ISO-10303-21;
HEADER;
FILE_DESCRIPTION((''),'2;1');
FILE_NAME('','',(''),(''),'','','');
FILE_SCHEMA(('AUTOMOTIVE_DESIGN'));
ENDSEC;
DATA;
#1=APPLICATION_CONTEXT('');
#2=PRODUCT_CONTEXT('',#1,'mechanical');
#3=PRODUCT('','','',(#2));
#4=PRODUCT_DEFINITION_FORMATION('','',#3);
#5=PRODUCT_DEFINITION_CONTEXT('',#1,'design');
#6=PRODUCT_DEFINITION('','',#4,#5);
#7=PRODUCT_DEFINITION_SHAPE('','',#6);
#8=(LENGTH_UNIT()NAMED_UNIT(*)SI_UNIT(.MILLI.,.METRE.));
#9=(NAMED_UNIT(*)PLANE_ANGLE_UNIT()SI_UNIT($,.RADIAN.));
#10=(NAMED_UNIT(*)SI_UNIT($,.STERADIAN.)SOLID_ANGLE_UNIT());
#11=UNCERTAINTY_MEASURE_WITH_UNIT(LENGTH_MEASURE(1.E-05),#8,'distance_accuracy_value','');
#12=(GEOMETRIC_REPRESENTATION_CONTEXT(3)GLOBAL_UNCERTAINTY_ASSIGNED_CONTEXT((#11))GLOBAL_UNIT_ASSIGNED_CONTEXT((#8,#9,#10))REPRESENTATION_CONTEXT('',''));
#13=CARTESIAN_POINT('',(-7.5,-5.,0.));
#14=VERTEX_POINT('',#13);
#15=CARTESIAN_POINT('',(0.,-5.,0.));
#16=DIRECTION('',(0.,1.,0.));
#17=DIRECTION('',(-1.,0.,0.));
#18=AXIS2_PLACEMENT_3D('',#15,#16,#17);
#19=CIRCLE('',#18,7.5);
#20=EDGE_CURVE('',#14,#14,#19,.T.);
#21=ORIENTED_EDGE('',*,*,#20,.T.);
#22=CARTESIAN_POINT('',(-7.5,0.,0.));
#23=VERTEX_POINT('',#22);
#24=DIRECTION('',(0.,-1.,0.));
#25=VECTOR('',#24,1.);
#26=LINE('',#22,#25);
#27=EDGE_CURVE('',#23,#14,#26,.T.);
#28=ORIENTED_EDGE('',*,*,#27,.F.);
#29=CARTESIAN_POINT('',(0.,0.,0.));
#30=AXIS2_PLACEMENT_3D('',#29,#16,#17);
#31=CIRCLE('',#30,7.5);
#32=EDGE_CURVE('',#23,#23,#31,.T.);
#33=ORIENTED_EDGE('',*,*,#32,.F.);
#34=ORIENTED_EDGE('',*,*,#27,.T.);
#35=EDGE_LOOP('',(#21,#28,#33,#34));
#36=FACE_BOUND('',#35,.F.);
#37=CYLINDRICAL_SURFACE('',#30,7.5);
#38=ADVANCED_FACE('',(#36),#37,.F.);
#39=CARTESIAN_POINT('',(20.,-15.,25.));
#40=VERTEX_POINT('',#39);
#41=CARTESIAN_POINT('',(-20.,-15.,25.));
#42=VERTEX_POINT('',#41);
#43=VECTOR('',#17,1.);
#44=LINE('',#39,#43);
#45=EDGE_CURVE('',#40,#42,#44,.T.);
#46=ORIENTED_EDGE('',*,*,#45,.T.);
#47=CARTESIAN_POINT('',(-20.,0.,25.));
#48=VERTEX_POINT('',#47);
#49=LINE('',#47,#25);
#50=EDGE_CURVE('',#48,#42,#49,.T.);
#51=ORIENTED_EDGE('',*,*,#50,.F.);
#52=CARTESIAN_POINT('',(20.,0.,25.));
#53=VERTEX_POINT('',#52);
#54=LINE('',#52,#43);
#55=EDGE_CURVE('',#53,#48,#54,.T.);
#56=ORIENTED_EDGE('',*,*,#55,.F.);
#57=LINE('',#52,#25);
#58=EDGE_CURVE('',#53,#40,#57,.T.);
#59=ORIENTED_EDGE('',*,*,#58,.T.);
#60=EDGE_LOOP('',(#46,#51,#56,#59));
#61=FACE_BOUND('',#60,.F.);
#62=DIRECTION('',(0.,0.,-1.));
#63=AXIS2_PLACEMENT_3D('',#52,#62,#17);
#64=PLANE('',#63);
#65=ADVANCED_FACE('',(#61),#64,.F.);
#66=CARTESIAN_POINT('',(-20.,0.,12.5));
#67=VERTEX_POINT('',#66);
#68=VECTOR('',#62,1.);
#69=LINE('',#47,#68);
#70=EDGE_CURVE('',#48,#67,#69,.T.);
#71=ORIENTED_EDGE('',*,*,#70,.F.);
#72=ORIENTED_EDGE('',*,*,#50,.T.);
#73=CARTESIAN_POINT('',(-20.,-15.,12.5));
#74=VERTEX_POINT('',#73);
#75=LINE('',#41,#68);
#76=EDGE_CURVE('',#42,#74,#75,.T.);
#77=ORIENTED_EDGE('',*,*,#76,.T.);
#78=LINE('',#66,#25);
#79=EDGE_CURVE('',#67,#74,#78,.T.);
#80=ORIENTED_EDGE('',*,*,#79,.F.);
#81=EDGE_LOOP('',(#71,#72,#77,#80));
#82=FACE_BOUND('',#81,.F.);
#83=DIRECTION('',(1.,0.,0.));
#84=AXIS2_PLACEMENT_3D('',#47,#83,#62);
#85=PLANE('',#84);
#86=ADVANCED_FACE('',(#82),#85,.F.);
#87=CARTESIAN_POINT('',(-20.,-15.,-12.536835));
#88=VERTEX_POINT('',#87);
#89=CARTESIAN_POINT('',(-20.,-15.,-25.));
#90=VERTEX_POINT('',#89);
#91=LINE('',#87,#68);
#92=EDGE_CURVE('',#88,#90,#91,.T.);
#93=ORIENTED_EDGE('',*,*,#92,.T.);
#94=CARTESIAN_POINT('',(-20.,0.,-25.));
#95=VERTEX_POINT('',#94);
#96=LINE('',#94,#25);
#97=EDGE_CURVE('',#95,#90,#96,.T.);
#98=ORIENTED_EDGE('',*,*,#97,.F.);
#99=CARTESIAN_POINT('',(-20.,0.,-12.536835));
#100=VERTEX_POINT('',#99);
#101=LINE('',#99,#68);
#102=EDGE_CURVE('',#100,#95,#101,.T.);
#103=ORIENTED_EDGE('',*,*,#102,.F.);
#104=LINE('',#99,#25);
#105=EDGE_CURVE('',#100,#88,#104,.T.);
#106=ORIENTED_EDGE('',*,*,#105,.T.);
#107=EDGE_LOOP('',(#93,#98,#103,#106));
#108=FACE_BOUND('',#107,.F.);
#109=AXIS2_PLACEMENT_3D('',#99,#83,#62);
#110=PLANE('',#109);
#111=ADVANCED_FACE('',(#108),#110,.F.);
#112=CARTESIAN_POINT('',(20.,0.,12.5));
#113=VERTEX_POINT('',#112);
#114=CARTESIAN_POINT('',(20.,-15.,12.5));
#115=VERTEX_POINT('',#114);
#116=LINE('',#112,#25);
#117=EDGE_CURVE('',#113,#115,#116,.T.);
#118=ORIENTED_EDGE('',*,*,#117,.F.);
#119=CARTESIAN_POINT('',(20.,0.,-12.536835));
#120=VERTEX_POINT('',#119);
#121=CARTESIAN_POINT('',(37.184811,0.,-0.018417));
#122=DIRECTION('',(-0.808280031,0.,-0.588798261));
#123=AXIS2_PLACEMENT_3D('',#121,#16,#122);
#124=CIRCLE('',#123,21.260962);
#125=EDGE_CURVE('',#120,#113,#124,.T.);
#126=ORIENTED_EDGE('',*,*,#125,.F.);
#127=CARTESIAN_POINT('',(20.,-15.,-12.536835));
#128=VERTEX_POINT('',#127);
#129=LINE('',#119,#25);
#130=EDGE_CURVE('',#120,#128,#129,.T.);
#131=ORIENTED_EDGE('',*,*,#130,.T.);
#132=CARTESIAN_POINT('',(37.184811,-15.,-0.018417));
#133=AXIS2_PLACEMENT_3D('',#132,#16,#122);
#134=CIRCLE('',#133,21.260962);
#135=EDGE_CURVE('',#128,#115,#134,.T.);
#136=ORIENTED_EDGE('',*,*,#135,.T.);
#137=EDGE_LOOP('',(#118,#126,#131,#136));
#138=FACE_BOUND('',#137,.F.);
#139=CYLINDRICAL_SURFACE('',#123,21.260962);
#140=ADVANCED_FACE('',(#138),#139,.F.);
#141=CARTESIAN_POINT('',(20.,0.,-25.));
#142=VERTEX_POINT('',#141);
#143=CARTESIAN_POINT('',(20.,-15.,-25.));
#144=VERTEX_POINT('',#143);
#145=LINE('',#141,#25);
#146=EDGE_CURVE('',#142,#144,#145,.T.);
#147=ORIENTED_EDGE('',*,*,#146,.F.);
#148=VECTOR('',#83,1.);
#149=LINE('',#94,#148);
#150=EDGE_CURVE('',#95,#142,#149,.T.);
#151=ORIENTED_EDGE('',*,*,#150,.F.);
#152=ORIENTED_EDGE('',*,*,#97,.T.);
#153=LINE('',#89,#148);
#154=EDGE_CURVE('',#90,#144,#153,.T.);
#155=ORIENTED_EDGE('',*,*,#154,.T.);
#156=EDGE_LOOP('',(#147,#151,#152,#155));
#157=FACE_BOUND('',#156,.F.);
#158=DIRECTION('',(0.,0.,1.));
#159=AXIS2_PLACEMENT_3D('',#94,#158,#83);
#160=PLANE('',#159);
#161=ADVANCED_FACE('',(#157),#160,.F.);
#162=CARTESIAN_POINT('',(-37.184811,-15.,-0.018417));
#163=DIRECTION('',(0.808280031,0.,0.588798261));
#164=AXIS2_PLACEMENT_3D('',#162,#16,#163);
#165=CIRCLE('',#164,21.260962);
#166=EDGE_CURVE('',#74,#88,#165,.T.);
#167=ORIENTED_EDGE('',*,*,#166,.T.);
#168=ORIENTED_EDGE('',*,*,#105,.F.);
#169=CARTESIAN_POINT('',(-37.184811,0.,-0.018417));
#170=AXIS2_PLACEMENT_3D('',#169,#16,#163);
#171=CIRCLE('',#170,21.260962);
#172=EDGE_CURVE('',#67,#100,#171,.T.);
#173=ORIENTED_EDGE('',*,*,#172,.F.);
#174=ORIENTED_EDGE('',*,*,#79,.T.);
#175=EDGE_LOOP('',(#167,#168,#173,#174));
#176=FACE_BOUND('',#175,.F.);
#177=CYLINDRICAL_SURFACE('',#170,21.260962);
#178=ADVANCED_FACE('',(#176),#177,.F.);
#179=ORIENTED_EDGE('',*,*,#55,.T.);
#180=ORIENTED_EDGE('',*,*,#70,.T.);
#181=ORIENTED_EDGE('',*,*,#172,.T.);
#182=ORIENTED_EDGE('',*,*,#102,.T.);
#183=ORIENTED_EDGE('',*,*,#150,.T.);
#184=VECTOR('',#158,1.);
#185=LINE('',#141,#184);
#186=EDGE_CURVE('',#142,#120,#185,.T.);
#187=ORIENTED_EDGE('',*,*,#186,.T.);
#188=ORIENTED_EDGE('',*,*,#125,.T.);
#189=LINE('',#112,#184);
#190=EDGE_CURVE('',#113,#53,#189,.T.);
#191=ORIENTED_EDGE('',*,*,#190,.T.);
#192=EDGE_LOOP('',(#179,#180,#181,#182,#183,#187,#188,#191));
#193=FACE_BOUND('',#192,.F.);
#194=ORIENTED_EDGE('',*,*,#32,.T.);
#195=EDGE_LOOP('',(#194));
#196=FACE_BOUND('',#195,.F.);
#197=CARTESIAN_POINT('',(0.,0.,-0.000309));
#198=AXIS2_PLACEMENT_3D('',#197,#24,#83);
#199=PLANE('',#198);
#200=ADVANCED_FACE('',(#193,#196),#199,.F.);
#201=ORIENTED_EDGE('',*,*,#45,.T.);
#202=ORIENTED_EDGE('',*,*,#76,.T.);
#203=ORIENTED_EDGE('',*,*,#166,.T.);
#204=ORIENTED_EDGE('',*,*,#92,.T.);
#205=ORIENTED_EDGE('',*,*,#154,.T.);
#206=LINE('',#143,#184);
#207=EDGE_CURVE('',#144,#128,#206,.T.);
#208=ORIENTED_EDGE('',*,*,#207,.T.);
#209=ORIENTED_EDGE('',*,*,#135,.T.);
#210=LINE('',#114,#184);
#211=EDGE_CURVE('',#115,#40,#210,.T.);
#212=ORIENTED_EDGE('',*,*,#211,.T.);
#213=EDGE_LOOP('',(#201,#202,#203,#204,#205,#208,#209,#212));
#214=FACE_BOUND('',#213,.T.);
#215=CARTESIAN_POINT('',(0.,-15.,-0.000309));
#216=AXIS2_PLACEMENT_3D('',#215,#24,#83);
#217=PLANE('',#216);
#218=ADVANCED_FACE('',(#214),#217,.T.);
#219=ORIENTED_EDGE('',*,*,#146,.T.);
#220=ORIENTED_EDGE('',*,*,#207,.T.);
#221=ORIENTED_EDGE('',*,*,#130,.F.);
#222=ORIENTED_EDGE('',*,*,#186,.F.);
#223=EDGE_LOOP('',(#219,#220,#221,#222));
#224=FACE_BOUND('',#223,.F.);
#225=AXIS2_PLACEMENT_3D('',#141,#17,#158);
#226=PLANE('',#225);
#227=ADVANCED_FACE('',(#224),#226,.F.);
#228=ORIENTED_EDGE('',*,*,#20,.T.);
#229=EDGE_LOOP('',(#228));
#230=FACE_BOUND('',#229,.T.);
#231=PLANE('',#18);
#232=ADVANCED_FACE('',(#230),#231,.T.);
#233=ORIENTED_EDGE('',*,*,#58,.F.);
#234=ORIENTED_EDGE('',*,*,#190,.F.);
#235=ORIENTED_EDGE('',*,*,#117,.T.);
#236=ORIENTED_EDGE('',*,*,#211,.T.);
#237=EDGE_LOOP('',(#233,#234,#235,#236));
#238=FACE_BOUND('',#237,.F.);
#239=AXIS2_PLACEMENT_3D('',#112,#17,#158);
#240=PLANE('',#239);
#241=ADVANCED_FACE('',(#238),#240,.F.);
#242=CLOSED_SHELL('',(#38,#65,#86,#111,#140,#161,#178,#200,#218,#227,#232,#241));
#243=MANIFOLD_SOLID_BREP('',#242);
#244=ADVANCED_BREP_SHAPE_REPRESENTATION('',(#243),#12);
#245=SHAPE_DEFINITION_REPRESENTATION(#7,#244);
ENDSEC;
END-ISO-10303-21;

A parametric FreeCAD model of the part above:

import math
import FreeCAD as App
import Part
import Sketcher
Q = App.Units.Quantity

doc = App.newDocument("Part")
body = doc.addObject("PartDesign::Body", "Body")

# Sketch on XZ plane
sketch1 = doc.addObject("Sketcher::SketchObject", "Sketch")
body.addObject(sketch1)
sketch1.AttachmentSupport = (doc.XZ_Plane, [""])
sketch1.MapMode = "FlatFace"
sketch1.addGeometry([
    Part.LineSegment(App.Vector(-20, -25, 0), App.Vector(20, -25, 0)),  # 0
    Part.LineSegment(App.Vector(20, -25, 0), App.Vector(20, -13, 0)),  # 1
    Part.ArcOfCircle(Part.Circle(App.Vector(37, 0, 0), App.Vector(0, 0, 1), 21), math.radians(144), math.radians(216)),  # 2
    Part.LineSegment(App.Vector(20, 12, 0), App.Vector(20, 25, 0)),  # 3
    Part.LineSegment(App.Vector(20, 25, 0), App.Vector(-20, 25, 0)),  # 4
    Part.LineSegment(App.Vector(-20, 25, 0), App.Vector(-20, 12, 0)),  # 5
    Part.ArcOfCircle(Part.Circle(App.Vector(-37, 0, 0), App.Vector(0, 0, 1), 21), math.radians(-36), math.radians(36)),  # 6
    Part.LineSegment(App.Vector(-20, -13, 0), App.Vector(-20, -25, 0)),  # 7
], False)
sketch1.addConstraint([
    Sketcher.Constraint("Coincident", 0, 2, 1, 1),
    Sketcher.Constraint("Coincident", 1, 2, 2, 2),
    Sketcher.Constraint("Coincident", 2, 1, 3, 1),
    Sketcher.Constraint("Coincident", 3, 2, 4, 1),
    Sketcher.Constraint("Coincident", 4, 2, 5, 1),
    Sketcher.Constraint("Coincident", 5, 2, 6, 2),
    Sketcher.Constraint("Coincident", 6, 1, 7, 1),
    Sketcher.Constraint("Coincident", 7, 2, 0, 1),
    Sketcher.Constraint("Horizontal", 0),
    Sketcher.Constraint("Vertical", 1),
    Sketcher.Constraint("Vertical", 3),
    Sketcher.Constraint("Horizontal", 4),
    Sketcher.Constraint("Vertical", 5),
    Sketcher.Constraint("Vertical", 7),
    Sketcher.Constraint("Equal", 2, 6),
    Sketcher.Constraint("Symmetric", 0, 2, 4, 2, -1, 1),
    Sketcher.Constraint("Symmetric", 2, 3, 6, 3, -2),
    Sketcher.Constraint("Horizontal", 2, 1, 5, 2),
    Sketcher.Constraint("Horizontal", 1, 2, 6, 1),
    Sketcher.Constraint("DistanceX", 0, 1, 0, 2, Q("40 mm")),
    Sketcher.Constraint("DistanceY", 3, 1, 3, 2, Q("12.5 mm")),
    Sketcher.Constraint("DistanceY", 0, 2, -1, 1, Q("25 mm")),
    Sketcher.Constraint("Radius", 2, Q("21.260962 mm")),
    Sketcher.Constraint("DistanceY", 1, 1, 1, 2, Q("12.463165 mm")),
])
pad1 = doc.addObject("PartDesign::Pad", "Pad")
body.addObject(pad1)
pad1.Profile = sketch1
pad1.Length = 15

# Sketch on XZ plane
sketch2 = doc.addObject("Sketcher::SketchObject", "Sketch001")
body.addObject(sketch2)
sketch2.AttachmentSupport = (doc.XZ_Plane, [""])
sketch2.MapMode = "FlatFace"
sketch2.addGeometry(Part.Circle(App.Vector(0, 0, 0), App.Vector(0, 0, 1), 8), False)
sketch2.addConstraint([
    Sketcher.Constraint("Coincident", 0, 3, -1, 1),
    Sketcher.Constraint("Diameter", 0, Q("15 mm")),
])
pocket1 = doc.addObject("PartDesign::Pocket", "Pocket")
body.addObject(pocket1)
pocket1.Profile = sketch2
pocket1.Length = 5
pocket1.Reversed = True

doc.recompute()
